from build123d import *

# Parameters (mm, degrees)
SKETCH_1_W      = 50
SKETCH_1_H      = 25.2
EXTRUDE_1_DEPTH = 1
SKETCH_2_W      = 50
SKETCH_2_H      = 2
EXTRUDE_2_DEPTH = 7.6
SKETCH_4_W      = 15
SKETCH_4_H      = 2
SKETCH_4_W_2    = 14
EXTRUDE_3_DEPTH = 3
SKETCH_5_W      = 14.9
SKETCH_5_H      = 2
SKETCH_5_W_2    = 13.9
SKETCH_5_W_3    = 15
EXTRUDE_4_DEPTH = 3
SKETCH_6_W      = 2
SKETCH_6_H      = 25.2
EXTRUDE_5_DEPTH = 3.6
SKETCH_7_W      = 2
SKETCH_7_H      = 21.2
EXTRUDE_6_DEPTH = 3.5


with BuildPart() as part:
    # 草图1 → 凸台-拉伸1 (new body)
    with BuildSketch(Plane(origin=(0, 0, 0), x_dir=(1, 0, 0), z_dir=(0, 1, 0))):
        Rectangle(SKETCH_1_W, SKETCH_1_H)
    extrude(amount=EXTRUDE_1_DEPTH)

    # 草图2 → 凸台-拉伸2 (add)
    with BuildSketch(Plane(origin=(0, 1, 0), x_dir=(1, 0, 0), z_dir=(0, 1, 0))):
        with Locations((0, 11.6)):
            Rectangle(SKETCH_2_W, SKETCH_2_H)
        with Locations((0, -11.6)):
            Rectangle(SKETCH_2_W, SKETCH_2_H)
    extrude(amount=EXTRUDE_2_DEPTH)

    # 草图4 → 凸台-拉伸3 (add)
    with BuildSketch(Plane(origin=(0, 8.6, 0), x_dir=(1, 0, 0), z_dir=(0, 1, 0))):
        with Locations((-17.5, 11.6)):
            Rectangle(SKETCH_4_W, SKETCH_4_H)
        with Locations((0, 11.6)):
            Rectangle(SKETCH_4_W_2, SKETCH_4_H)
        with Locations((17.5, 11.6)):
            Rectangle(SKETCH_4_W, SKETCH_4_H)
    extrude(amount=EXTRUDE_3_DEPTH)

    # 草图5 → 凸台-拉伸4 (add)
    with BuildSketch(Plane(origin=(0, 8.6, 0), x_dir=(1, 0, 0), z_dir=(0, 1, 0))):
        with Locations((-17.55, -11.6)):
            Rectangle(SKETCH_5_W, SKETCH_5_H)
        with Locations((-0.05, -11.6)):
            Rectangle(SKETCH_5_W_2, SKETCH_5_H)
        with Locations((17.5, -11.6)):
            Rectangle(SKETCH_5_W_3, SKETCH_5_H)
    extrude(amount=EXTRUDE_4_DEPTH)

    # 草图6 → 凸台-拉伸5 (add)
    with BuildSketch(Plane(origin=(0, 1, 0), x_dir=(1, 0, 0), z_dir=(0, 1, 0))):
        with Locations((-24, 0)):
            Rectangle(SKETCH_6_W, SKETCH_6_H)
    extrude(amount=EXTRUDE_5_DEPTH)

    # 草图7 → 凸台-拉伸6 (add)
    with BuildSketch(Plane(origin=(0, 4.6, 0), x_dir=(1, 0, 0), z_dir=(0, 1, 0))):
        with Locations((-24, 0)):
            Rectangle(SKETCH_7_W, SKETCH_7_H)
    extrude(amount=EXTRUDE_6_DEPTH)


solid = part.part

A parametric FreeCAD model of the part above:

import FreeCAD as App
import Part
import Sketcher

V = App.Vector


def add_polygon(sketch, points):
    """Adds a closed chain of lines whose ends are joined by coincident constraints."""
    first, n = sketch.GeometryCount, len(points)
    for a, b in zip(points, points[1:] + points[:1]):
        sketch.addGeometry(Part.LineSegment(App.Vector(*a, 0), App.Vector(*b, 0)), False)
    for i in range(n):
        sketch.addConstraint(Sketcher.Constraint("Coincident", first + i, 2, first + (i + 1) % n, 1))

doc = App.newDocument("Part")
body = doc.addObject("PartDesign::Body", "Body")

# Sketch on XZ plane
sketch1 = doc.addObject("Sketcher::SketchObject", "Sketch")
body.addObject(sketch1)
sketch1.AttachmentSupport = (doc.XZ_Plane, [""])
sketch1.MapMode = "FlatFace"
add_polygon(sketch1, [(-25, -13), (-25, 13), (25, 13), (25, -13)])  # lines 0-3
sketch1.addConstraint(Sketcher.Constraint("Vertical", 0))
sketch1.addConstraint(Sketcher.Constraint("Horizontal", 1))
sketch1.addConstraint(Sketcher.Constraint("Vertical", 2))
sketch1.addConstraint(Sketcher.Constraint("Horizontal", 3))
sketch1.addConstraint(Sketcher.Constraint("Symmetric", 0, 2, 2, 2, -1, 1))
sketch1.addConstraint(Sketcher.Constraint("DistanceX", 1, 1, 1, 2, 50.0))
sketch1.addConstraint(Sketcher.Constraint("DistanceY", 0, 1, 0, 2, 25.2))
pad1 = doc.addObject("PartDesign::Pad", "Pad")
body.addObject(pad1)
pad1.Profile = sketch1
pad1.Length = 1
pad1.Reversed = True

# Sketch on XZ plane
sketch2 = doc.addObject("Sketcher::SketchObject", "Sketch001")
body.addObject(sketch2)
sketch2.AttachmentSupport = (doc.XZ_Plane, [""])
sketch2.MapMode = "FlatFace"
sketch2.AttachmentOffset = App.Placement(V(0, 0, -1), App.Rotation())
add_polygon(sketch2, [(-25, -12.6), (-25, -10.6), (25, -10.6), (25, -12.6)])  # lines 0-3
add_polygon(sketch2, [(-25, 10.6), (-25, 12.6), (25, 12.6), (25, 10.6)])  # lines 4-7
sketch2.addConstraint(Sketcher.Constraint("Vertical", 0))
sketch2.addConstraint(Sketcher.Constraint("Horizontal", 1))
sketch2.addConstraint(Sketcher.Constraint("Vertical", 2))
sketch2.addConstraint(Sketcher.Constraint("Horizontal", 3))
sketch2.addConstraint(Sketcher.Constraint("Vertical", 4))
sketch2.addConstraint(Sketcher.Constraint("Horizontal", 5))
sketch2.addConstraint(Sketcher.Constraint("Vertical", 6))
sketch2.addConstraint(Sketcher.Constraint("Horizontal", 7))
sketch2.addConstraint(Sketcher.Constraint("Symmetric", 2, 2, 4, 2, -1, 1))
sketch2.addConstraint(Sketcher.Constraint("Symmetric", 0, 2, 6, 2, -1, 1))
sketch2.addConstraint(Sketcher.Constraint("Vertical", 3, 2, 4, 2))
sketch2.addConstraint(Sketcher.Constraint("DistanceX", 1, 1, 1, 2, 50.0))
sketch2.addConstraint(Sketcher.Constraint("DistanceY", 0, 1, 0, 2, 2.0))
sketch2.addConstraint(Sketcher.Constraint("DistanceY", 0, 2, -1, 1, 10.6))
pad2 = doc.addObject("PartDesign::Pad", "Pad001")
body.addObject(pad2)
pad2.Profile = sketch2
pad2.Length = 7.6
pad2.Reversed = True

# Sketch on XZ plane
sketch3 = doc.addObject("Sketcher::SketchObject", "Sketch002")
body.addObject(sketch3)
sketch3.AttachmentSupport = (doc.XZ_Plane, [""])
sketch3.MapMode = "FlatFace"
sketch3.AttachmentOffset = App.Placement(V(0, 0, -8.6), App.Rotation())
add_polygon(sketch3, [(-25, -12.6), (-25, -10.6), (-10, -10.6), (-10, -12.6)])  # lines 0-3
add_polygon(sketch3, [(-7, -12.6), (-7, -10.6), (7, -10.6), (7, -12.6)])  # lines 4-7
add_polygon(sketch3, [(10, -12.6), (10, -10.6), (25, -10.6), (25, -12.6)])  # lines 8-11
sketch3.addConstraint(Sketcher.Constraint("Vertical", 0))
sketch3.addConstraint(Sketcher.Constraint("Horizontal", 1))
sketch3.addConstraint(Sketcher.Constraint("Vertical", 2))
sketch3.addConstraint(Sketcher.Constraint("Horizontal", 3))
sketch3.addConstraint(Sketcher.Constraint("Vertical", 4))
sketch3.addConstraint(Sketcher.Constraint("Horizontal", 5))
sketch3.addConstraint(Sketcher.Constraint("Vertical", 6))
sketch3.addConstraint(Sketcher.Constraint("Horizontal", 7))
sketch3.addConstraint(Sketcher.Constraint("Vertical", 8))
sketch3.addConstraint(Sketcher.Constraint("Horizontal", 9))
sketch3.addConstraint(Sketcher.Constraint("Vertical", 10))
sketch3.addConstraint(Sketcher.Constraint("Horizontal", 11))
sketch3.addConstraint(Sketcher.Constraint("Symmetric", 1, 2, 8, 2, -2))
sketch3.addConstraint(Sketcher.Constraint("Symmetric", 3, 2, 10, 2, -2))
sketch3.addConstraint(Sketcher.Constraint("Horizontal", 1, 2, 4, 2))
sketch3.addConstraint(Sketcher.Constraint("Horizontal", 3, 2, 6, 2))
sketch3.addConstraint(Sketcher.Constraint("DistanceX", 1, 1, 1, 2, 15.0))
sketch3.addConstraint(Sketcher.Constraint("DistanceX", 5, 1, 5, 2, 14.0))
sketch3.addConstraint(Sketcher.Constraint("DistanceY", 0, 1, 0, 2, 2.0))
sketch3.addConstraint(Sketcher.Constraint("DistanceX", 0, 2, -1, 1, 25.0))
sketch3.addConstraint(Sketcher.Constraint("DistanceX", 4, 2, -1, 1, 7.0))
sketch3.addConstraint(Sketcher.Constraint("DistanceY", 0, 2, -1, 1, 10.6))
pad3 = doc.addObject("PartDesign::Pad", "Pad002")
body.addObject(pad3)
pad3.Profile = sketch3
pad3.Length = 3
pad3.Reversed = True

# Sketch on XZ plane
sketch4 = doc.addObject("Sketcher::SketchObject", "Sketch003")
body.addObject(sketch4)
sketch4.AttachmentSupport = (doc.XZ_Plane, [""])
sketch4.MapMode = "FlatFace"
sketch4.AttachmentOffset = App.Placement(V(0, 0, -8.6), App.Rotation())
add_polygon(sketch4, [(-25, 10.6), (-25, 12.6), (-10.1, 12.6), (-10.1, 10.6)])  # lines 0-3
add_polygon(sketch4, [(-7, 10.6), (-7, 12.6), (6.9, 12.6), (6.9, 10.6)])  # lines 4-7
add_polygon(sketch4, [(10, 10.6), (10, 12.6), (25, 12.6), (25, 10.6)])  # lines 8-11
sketch4.addConstraint(Sketcher.Constraint("Vertical", 0))
sketch4.addConstraint(Sketcher.Constraint("Horizontal", 1))
sketch4.addConstraint(Sketcher.Constraint("Vertical", 2))
sketch4.addConstraint(Sketcher.Constraint("Horizontal", 3))
sketch4.addConstraint(Sketcher.Constraint("Vertical", 4))
sketch4.addConstraint(Sketcher.Constraint("Horizontal", 5))
sketch4.addConstraint(Sketcher.Constraint("Vertical", 6))
sketch4.addConstraint(Sketcher.Constraint("Horizontal", 7))
sketch4.addConstraint(Sketcher.Constraint("Vertical", 8))
sketch4.addConstraint(Sketcher.Constraint("Horizontal", 9))
sketch4.addConstraint(Sketcher.Constraint("Vertical", 10))
sketch4.addConstraint(Sketcher.Constraint("Horizontal", 11))
sketch4.addConstraint(Sketcher.Constraint("Symmetric", 0, 2, 9, 2, -2))
sketch4.addConstraint(Sketcher.Constraint("Horizontal", 1, 2, 4, 2))
sketch4.addConstraint(Sketcher.Constraint("Horizontal", 3, 2, 6, 2))
sketch4.addConstraint(Sketcher.Constraint("Horizontal", 7, 2, 10, 2))
sketch4.addConstraint(Sketcher.Constraint("DistanceX", 9, 1, 9, 2, 15.0))
sketch4.addConstraint(Sketcher.Constraint("DistanceY", 0, 1, 0, 2, 2.0))
sketch4.addConstraint(Sketcher.Constraint("DistanceX", 1, 1, 1, 2, 14.9))
sketch4.addConstraint(Sketcher.Constraint("DistanceX", 5, 1, 5, 2, 13.9))
sketch4.addConstraint(Sketcher.Constraint("DistanceX", 0, 2, -1, 1, 25.0))
sketch4.addConstraint(Sketcher.Constraint("DistanceX", 4, 2, -1, 1, 7.0))
sketch4.addConstraint(Sketcher.Constraint("DistanceY", -1, 1, 0, 2, 12.6))
pad4 = doc.addObject("PartDesign::Pad", "Pad003")
body.addObject(pad4)
pad4.Profile = sketch4
pad4.Length = 3
pad4.Reversed = True

# Sketch on XZ plane
sketch5 = doc.addObject("Sketcher::SketchObject", "Sketch004")
body.addObject(sketch5)
sketch5.AttachmentSupport = (doc.XZ_Plane, [""])
sketch5.MapMode = "FlatFace"
sketch5.AttachmentOffset = App.Placement(V(0, 0, -1), App.Rotation())
add_polygon(sketch5, [(-25, -12.6), (-25, 12.6), (-23, 12.6), (-23, -12.6)])  # lines 0-3
sketch5.addConstraint(Sketcher.Constraint("Vertical", 0))
sketch5.addConstraint(Sketcher.Constraint("Horizontal", 1))
sketch5.addConstraint(Sketcher.Constraint("Vertical", 2))
sketch5.addConstraint(Sketcher.Constraint("Horizontal", 3))
sketch5.addConstraint(Sketcher.Constraint("DistanceX", 1, 1, 1, 2, 2.0))
sketch5.addConstraint(Sketcher.Constraint("DistanceY", 0, 1, 0, 2, 25.2))
sketch5.addConstraint(Sketcher.Constraint("DistanceX", 0, 2, -1, 1, 25.0))
sketch5.addConstraint(Sketcher.Constraint("DistanceY", -1, 1, 0, 2, 12.6))
pad5 = doc.addObject("PartDesign::Pad", "Pad004")
body.addObject(pad5)
pad5.Profile = sketch5
pad5.Length = 3.6
pad5.Reversed = True

# Sketch on XZ plane
sketch6 = doc.addObject("Sketcher::SketchObject", "Sketch005")
body.addObject(sketch6)
sketch6.AttachmentSupport = (doc.XZ_Plane, [""])
sketch6.MapMode = "FlatFace"
sketch6.AttachmentOffset = App.Placement(V(0, 0, -4.6), App.Rotation())
add_polygon(sketch6, [(-25, -10.6), (-25, 10.6), (-23, 10.6), (-23, -10.6)])  # lines 0-3
sketch6.addConstraint(Sketcher.Constraint("Vertical", 0))
sketch6.addConstraint(Sketcher.Constraint("Horizontal", 1))
sketch6.addConstraint(Sketcher.Constraint("Vertical", 2))
sketch6.addConstraint(Sketcher.Constraint("Horizontal", 3))
sketch6.addConstraint(Sketcher.Constraint("DistanceX", 1, 1, 1, 2, 2.0))
sketch6.addConstraint(Sketcher.Constraint("DistanceY", 0, 1, 0, 2, 21.2))
sketch6.addConstraint(Sketcher.Constraint("DistanceX", 0, 2, -1, 1, 25.0))
sketch6.addConstraint(Sketcher.Constraint("DistanceY", -1, 1, 0, 2, 10.6))
pad6 = doc.addObject("PartDesign::Pad", "Pad005")
body.addObject(pad6)
pad6.Profile = sketch6
pad6.Length = 3.5
pad6.Reversed = True

doc.recompute()
